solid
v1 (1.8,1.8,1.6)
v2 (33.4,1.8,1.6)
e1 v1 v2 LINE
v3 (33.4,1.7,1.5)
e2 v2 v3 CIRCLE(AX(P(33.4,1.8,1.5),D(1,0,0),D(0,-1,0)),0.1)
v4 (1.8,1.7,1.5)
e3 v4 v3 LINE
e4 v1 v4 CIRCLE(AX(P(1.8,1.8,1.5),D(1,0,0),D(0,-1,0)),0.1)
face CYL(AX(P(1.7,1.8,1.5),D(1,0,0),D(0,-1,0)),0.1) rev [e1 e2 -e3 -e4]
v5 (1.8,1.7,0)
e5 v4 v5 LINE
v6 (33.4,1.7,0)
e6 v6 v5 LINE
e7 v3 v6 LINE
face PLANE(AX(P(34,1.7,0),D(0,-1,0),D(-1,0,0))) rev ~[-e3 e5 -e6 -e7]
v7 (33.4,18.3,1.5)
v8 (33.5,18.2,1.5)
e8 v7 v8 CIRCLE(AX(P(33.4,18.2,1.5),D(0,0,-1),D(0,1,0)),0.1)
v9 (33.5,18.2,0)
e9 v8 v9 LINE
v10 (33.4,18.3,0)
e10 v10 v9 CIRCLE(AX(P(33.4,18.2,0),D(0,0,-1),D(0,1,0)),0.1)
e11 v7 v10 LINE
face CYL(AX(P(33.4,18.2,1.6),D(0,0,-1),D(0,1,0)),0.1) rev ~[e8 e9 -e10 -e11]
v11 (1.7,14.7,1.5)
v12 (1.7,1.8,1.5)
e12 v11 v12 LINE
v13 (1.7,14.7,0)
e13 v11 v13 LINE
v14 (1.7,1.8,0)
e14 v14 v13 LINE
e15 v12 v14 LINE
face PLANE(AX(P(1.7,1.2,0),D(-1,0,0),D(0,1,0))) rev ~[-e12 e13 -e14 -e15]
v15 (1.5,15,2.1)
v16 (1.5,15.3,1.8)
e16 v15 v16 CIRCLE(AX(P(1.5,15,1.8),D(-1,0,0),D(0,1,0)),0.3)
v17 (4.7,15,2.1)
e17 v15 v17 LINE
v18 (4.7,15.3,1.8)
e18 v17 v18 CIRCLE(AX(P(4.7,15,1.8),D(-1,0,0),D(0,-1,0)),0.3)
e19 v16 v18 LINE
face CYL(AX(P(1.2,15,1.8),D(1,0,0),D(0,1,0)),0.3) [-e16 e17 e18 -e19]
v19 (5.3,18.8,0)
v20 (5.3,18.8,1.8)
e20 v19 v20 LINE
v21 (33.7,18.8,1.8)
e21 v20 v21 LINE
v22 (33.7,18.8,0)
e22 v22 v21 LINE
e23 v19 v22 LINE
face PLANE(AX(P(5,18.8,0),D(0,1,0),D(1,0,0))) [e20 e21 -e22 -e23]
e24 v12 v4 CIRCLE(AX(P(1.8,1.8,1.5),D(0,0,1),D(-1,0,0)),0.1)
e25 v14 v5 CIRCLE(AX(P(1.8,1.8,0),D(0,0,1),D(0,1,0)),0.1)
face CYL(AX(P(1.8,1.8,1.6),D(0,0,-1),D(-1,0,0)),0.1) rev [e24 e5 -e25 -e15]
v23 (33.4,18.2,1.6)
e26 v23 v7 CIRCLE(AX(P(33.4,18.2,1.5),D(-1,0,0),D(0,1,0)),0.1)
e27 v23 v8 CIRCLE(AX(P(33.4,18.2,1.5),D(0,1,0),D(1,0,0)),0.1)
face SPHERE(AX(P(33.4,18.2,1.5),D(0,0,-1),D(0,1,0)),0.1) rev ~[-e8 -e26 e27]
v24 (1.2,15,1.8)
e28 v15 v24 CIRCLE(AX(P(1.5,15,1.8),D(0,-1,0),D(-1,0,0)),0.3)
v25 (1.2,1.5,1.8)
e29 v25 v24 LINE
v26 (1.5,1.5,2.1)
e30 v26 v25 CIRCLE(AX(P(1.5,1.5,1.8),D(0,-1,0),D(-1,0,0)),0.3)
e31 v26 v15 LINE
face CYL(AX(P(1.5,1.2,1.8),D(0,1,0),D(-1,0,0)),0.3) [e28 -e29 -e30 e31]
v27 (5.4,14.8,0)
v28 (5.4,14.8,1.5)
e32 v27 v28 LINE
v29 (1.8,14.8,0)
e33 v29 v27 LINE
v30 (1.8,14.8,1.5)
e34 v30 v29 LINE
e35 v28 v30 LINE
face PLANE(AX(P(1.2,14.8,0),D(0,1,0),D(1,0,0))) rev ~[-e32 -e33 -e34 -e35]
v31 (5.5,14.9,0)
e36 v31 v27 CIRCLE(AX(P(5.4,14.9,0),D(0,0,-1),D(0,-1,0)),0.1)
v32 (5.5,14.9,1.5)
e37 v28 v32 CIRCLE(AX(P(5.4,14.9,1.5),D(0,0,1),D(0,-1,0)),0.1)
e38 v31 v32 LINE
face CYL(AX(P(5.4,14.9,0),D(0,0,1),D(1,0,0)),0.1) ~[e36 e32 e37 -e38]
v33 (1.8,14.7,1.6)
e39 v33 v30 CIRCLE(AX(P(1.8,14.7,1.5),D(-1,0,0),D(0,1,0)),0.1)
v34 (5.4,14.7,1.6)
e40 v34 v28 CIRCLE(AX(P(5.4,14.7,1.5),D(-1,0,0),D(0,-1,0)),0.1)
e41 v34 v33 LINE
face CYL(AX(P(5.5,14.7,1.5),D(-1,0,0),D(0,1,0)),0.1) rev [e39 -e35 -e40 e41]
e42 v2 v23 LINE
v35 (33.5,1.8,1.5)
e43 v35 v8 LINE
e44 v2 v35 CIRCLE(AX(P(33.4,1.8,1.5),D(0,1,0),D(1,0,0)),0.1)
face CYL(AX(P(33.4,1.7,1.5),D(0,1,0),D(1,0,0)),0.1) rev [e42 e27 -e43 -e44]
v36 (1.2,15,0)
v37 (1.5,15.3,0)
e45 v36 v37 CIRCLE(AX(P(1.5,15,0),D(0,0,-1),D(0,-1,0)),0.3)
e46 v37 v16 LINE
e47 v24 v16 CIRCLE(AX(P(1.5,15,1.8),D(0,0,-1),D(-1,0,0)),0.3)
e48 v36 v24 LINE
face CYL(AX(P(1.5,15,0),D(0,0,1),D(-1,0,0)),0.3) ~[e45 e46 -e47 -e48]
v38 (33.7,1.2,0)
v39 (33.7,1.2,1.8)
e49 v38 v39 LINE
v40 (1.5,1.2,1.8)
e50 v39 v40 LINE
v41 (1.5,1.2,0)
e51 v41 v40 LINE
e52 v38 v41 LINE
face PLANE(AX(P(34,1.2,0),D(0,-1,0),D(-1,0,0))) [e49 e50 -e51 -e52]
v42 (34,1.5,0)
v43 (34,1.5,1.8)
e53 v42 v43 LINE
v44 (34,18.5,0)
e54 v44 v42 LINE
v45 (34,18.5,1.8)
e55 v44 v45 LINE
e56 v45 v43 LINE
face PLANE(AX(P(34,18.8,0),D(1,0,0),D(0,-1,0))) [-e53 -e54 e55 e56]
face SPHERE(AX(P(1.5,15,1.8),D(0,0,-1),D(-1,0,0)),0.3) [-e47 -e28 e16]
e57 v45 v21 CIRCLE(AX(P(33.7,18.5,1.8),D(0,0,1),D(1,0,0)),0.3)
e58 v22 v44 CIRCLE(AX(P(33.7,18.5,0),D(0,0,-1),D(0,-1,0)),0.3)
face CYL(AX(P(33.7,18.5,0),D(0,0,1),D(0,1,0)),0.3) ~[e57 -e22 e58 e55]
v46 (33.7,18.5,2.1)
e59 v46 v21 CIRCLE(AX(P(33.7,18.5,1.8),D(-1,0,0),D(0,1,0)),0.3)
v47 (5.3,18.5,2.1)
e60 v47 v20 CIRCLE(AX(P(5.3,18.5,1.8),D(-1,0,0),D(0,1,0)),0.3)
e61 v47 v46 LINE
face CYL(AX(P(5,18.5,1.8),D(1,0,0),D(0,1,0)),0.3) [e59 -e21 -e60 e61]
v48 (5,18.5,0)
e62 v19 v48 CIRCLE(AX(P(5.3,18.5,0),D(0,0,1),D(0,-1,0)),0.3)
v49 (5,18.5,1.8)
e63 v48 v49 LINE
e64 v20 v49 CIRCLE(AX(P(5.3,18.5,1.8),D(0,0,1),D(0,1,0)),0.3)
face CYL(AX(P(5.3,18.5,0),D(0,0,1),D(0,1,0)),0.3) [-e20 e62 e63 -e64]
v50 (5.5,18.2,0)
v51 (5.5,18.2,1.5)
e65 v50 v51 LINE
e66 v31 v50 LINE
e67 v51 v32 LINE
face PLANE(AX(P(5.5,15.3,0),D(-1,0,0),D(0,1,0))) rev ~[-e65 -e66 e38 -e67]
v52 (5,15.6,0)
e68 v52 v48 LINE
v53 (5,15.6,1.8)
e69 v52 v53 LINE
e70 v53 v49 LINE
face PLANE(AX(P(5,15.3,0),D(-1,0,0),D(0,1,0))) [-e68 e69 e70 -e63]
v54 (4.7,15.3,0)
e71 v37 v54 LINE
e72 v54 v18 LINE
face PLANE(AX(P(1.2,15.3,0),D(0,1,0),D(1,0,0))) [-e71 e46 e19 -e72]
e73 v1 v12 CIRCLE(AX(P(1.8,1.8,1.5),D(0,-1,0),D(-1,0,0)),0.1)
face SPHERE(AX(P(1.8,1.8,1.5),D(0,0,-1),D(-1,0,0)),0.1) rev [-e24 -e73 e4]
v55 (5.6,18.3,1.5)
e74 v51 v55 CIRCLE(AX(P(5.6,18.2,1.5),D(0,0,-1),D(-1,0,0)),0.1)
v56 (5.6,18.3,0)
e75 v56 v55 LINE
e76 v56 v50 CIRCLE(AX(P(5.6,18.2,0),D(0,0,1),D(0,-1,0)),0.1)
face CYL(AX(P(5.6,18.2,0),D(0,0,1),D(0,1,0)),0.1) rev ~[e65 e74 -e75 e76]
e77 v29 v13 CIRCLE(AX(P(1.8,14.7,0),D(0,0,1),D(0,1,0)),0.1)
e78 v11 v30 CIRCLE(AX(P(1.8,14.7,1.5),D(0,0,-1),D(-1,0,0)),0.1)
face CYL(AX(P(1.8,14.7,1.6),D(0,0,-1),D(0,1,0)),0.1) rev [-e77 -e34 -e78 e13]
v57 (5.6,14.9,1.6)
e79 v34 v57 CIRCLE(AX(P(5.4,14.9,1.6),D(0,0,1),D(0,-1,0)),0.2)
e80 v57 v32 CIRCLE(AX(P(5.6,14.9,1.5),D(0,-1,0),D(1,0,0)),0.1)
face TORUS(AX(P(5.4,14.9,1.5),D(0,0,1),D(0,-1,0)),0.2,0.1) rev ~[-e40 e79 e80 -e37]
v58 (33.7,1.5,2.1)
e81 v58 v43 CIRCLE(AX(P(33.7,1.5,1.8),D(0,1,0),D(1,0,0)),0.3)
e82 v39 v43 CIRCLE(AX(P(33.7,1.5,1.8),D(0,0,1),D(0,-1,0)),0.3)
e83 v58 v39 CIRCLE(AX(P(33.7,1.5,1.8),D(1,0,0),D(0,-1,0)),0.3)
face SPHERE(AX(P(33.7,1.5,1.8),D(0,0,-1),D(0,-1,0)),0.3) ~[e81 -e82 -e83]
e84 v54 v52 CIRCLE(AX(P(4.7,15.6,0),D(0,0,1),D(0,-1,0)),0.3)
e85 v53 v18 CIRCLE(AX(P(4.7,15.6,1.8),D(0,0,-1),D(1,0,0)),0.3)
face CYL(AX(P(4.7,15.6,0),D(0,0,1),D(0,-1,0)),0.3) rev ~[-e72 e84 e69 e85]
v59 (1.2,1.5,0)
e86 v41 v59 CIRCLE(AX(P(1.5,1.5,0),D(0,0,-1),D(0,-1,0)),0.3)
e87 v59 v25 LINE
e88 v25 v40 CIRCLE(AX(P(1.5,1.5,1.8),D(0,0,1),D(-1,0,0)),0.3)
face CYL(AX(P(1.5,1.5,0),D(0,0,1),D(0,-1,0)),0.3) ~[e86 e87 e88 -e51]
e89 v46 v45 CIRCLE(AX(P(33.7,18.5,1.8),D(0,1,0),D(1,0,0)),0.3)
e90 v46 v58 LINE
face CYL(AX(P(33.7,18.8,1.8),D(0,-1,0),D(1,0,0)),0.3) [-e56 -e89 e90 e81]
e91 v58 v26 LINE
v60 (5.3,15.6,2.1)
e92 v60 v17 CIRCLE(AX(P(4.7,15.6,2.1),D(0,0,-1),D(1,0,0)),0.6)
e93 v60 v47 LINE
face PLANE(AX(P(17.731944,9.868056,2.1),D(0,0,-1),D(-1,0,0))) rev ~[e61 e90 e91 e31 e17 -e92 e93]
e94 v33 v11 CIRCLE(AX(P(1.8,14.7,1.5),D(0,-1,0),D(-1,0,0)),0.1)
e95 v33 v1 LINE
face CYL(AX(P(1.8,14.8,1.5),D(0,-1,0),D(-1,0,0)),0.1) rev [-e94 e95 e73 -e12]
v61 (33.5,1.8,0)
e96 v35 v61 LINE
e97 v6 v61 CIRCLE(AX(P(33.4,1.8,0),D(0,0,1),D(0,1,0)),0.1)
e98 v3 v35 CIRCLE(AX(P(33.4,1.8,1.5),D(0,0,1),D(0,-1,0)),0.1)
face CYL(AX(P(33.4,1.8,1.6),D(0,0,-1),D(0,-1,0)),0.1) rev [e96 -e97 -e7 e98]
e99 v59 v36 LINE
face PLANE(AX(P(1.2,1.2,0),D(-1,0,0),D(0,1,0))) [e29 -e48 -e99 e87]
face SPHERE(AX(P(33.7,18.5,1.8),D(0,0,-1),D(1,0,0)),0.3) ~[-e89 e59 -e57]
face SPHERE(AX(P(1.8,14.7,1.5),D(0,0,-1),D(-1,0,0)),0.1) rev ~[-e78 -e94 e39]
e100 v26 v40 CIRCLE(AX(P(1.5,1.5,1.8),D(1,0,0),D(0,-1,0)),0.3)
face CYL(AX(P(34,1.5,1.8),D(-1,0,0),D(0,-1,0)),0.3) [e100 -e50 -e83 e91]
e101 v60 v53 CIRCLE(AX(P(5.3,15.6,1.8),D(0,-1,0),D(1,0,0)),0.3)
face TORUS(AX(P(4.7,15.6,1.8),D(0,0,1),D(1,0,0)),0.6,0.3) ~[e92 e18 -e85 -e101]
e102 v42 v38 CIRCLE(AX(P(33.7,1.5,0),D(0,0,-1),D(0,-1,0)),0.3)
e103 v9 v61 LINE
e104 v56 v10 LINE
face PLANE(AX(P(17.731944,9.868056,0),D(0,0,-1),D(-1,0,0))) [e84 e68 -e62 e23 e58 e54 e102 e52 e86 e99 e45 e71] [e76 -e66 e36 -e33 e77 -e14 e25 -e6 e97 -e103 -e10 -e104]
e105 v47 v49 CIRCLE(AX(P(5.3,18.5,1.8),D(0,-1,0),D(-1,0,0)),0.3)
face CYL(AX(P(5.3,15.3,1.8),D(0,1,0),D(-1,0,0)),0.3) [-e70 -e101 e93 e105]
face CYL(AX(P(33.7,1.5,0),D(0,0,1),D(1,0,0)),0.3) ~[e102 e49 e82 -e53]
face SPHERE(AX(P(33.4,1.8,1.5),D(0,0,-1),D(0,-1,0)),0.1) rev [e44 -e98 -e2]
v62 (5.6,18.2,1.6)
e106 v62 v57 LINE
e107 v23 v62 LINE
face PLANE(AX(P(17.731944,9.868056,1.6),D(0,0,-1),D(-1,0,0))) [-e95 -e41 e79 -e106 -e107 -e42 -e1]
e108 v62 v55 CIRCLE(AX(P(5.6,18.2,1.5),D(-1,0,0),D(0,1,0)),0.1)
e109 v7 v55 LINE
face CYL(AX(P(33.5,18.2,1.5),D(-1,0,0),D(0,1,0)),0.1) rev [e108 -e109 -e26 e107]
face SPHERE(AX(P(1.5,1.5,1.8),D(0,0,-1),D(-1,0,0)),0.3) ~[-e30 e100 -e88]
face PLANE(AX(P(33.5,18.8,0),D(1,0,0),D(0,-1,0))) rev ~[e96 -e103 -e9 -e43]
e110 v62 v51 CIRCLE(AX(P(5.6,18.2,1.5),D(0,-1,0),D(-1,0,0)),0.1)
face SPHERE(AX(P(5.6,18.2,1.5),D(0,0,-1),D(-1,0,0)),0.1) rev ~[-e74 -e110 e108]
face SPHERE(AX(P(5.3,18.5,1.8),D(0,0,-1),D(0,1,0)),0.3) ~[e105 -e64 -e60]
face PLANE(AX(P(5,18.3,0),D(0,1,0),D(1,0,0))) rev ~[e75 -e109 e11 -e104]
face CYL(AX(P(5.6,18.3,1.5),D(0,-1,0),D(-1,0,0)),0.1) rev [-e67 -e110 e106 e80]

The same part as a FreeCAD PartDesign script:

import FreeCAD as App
import Part
import Sketcher


def edges_at(feature, points):
    """Names of the edges that pass closest to the given points."""
    edges = feature.Shape.Edges
    near = lambda p: min(range(len(edges)), key=lambda i: edges[i].distToShape(Part.Vertex(*p))[0])
    return sorted({f"Edge{near(p) + 1}" for p in points})


def faces_at(feature, points):
    """Names of the faces that lie closest to the given points."""
    faces = feature.Shape.Faces
    near = lambda p: min(range(len(faces)), key=lambda i: faces[i].distToShape(Part.Vertex(*p))[0])
    return sorted({f"Face{near(p) + 1}" for p in points})


def add_polygon(sketch, points):
    """Adds a closed chain of lines whose ends are joined by coincident constraints."""
    first, n = sketch.GeometryCount, len(points)
    for a, b in zip(points, points[1:] + points[:1]):
        sketch.addGeometry(Part.LineSegment(App.Vector(*a, 0), App.Vector(*b, 0)), False)
    for i in range(n):
        sketch.addConstraint(Sketcher.Constraint("Coincident", first + i, 2, first + (i + 1) % n, 1))

doc = App.newDocument("Part")
body = doc.addObject("PartDesign::Body", "Body")

sketch1 = body.newObject("Sketcher::SketchObject", "Sketch")
sketch1.AttachmentSupport = (doc.getObject("XY_Plane"), [""])
sketch1.MapMode = "FlatFace"
add_polygon(sketch1, [(34, 18.8), (5, 18.8), (5, 15.3), (1.2, 15.3), (1.2, 1.2), (34, 1.2)])
sketch1.addConstraint([
    Sketcher.Constraint("Horizontal", 0),
    Sketcher.Constraint("Vertical", 1),
    Sketcher.Constraint("Horizontal", 2),
    Sketcher.Constraint("Vertical", 3),
    Sketcher.Constraint("Horizontal", 4),
    Sketcher.Constraint("Vertical", 5),
    Sketcher.Constraint("DistanceX", 0, 2, 0, 1, 29.0),
    Sketcher.Constraint("DistanceX", 2, 2, 2, 1, 3.8),
    Sketcher.Constraint("DistanceY", 1, 2, 1, 1, 3.5),
    Sketcher.Constraint("DistanceY", 3, 2, 3, 1, 14.1),
    Sketcher.Constraint("DistanceX", -1, 1, 0, 2, 5.0),
    Sketcher.Constraint("DistanceY", -1, 1, 0, 2, 18.8),
])
pad1 = body.newObject("PartDesign::Pad", "Pad")
pad1.Profile = sketch1
pad1.Length = 2.1
doc.recompute()

thickness = body.newObject("PartDesign::Thickness", "Thickness")
thickness.Base = (pad1, faces_at(pad1, [(17.6, 10, 0)]))
thickness.Value = 0.5
thickness.Reversed = True
thickness.Join = "Intersection"
doc.recompute()

fillet = body.newObject("PartDesign::Fillet", "Fillet")
fillet.Base = (thickness, edges_at(thickness, [
    (1.2, 1.2, 1.05),
    (34, 1.2, 1.05),
    (34, 18.8, 1.05),
    (5, 18.8, 1.05),
    (5, 15.3, 1.05),
    (1.2, 15.3, 1.05),
    (1.2, 8.25, 2.1),
    (17.6, 1.2, 2.1),
    (34, 10, 2.1),
    (19.5, 18.8, 2.1),
    (5, 17.05, 2.1),
    (3.1, 15.3, 2.1),
]))
fillet.Radius = 0.3
doc.recompute()

fillet2 = body.newObject("PartDesign::Fillet", "Fillet001")
fillet2.Base = (fillet, edges_at(fillet, [
    (1.7, 1.7, 0.8),
    (33.5, 1.7, 0.8),
    (33.5, 18.3, 0.8),
    (5.5, 18.3, 0.8),
    (5.5, 14.8, 0.8),
    (1.7, 14.8, 0.8),
    (1.7, 8.25, 1.6),
    (3.6, 14.8, 1.6),
    (5.5, 16.55, 1.6),
    (19.5, 18.3, 1.6),
    (17.6, 1.7, 1.6),
    (33.5, 10, 1.6),
]))
fillet2.Radius = 0.1

doc.recompute()
